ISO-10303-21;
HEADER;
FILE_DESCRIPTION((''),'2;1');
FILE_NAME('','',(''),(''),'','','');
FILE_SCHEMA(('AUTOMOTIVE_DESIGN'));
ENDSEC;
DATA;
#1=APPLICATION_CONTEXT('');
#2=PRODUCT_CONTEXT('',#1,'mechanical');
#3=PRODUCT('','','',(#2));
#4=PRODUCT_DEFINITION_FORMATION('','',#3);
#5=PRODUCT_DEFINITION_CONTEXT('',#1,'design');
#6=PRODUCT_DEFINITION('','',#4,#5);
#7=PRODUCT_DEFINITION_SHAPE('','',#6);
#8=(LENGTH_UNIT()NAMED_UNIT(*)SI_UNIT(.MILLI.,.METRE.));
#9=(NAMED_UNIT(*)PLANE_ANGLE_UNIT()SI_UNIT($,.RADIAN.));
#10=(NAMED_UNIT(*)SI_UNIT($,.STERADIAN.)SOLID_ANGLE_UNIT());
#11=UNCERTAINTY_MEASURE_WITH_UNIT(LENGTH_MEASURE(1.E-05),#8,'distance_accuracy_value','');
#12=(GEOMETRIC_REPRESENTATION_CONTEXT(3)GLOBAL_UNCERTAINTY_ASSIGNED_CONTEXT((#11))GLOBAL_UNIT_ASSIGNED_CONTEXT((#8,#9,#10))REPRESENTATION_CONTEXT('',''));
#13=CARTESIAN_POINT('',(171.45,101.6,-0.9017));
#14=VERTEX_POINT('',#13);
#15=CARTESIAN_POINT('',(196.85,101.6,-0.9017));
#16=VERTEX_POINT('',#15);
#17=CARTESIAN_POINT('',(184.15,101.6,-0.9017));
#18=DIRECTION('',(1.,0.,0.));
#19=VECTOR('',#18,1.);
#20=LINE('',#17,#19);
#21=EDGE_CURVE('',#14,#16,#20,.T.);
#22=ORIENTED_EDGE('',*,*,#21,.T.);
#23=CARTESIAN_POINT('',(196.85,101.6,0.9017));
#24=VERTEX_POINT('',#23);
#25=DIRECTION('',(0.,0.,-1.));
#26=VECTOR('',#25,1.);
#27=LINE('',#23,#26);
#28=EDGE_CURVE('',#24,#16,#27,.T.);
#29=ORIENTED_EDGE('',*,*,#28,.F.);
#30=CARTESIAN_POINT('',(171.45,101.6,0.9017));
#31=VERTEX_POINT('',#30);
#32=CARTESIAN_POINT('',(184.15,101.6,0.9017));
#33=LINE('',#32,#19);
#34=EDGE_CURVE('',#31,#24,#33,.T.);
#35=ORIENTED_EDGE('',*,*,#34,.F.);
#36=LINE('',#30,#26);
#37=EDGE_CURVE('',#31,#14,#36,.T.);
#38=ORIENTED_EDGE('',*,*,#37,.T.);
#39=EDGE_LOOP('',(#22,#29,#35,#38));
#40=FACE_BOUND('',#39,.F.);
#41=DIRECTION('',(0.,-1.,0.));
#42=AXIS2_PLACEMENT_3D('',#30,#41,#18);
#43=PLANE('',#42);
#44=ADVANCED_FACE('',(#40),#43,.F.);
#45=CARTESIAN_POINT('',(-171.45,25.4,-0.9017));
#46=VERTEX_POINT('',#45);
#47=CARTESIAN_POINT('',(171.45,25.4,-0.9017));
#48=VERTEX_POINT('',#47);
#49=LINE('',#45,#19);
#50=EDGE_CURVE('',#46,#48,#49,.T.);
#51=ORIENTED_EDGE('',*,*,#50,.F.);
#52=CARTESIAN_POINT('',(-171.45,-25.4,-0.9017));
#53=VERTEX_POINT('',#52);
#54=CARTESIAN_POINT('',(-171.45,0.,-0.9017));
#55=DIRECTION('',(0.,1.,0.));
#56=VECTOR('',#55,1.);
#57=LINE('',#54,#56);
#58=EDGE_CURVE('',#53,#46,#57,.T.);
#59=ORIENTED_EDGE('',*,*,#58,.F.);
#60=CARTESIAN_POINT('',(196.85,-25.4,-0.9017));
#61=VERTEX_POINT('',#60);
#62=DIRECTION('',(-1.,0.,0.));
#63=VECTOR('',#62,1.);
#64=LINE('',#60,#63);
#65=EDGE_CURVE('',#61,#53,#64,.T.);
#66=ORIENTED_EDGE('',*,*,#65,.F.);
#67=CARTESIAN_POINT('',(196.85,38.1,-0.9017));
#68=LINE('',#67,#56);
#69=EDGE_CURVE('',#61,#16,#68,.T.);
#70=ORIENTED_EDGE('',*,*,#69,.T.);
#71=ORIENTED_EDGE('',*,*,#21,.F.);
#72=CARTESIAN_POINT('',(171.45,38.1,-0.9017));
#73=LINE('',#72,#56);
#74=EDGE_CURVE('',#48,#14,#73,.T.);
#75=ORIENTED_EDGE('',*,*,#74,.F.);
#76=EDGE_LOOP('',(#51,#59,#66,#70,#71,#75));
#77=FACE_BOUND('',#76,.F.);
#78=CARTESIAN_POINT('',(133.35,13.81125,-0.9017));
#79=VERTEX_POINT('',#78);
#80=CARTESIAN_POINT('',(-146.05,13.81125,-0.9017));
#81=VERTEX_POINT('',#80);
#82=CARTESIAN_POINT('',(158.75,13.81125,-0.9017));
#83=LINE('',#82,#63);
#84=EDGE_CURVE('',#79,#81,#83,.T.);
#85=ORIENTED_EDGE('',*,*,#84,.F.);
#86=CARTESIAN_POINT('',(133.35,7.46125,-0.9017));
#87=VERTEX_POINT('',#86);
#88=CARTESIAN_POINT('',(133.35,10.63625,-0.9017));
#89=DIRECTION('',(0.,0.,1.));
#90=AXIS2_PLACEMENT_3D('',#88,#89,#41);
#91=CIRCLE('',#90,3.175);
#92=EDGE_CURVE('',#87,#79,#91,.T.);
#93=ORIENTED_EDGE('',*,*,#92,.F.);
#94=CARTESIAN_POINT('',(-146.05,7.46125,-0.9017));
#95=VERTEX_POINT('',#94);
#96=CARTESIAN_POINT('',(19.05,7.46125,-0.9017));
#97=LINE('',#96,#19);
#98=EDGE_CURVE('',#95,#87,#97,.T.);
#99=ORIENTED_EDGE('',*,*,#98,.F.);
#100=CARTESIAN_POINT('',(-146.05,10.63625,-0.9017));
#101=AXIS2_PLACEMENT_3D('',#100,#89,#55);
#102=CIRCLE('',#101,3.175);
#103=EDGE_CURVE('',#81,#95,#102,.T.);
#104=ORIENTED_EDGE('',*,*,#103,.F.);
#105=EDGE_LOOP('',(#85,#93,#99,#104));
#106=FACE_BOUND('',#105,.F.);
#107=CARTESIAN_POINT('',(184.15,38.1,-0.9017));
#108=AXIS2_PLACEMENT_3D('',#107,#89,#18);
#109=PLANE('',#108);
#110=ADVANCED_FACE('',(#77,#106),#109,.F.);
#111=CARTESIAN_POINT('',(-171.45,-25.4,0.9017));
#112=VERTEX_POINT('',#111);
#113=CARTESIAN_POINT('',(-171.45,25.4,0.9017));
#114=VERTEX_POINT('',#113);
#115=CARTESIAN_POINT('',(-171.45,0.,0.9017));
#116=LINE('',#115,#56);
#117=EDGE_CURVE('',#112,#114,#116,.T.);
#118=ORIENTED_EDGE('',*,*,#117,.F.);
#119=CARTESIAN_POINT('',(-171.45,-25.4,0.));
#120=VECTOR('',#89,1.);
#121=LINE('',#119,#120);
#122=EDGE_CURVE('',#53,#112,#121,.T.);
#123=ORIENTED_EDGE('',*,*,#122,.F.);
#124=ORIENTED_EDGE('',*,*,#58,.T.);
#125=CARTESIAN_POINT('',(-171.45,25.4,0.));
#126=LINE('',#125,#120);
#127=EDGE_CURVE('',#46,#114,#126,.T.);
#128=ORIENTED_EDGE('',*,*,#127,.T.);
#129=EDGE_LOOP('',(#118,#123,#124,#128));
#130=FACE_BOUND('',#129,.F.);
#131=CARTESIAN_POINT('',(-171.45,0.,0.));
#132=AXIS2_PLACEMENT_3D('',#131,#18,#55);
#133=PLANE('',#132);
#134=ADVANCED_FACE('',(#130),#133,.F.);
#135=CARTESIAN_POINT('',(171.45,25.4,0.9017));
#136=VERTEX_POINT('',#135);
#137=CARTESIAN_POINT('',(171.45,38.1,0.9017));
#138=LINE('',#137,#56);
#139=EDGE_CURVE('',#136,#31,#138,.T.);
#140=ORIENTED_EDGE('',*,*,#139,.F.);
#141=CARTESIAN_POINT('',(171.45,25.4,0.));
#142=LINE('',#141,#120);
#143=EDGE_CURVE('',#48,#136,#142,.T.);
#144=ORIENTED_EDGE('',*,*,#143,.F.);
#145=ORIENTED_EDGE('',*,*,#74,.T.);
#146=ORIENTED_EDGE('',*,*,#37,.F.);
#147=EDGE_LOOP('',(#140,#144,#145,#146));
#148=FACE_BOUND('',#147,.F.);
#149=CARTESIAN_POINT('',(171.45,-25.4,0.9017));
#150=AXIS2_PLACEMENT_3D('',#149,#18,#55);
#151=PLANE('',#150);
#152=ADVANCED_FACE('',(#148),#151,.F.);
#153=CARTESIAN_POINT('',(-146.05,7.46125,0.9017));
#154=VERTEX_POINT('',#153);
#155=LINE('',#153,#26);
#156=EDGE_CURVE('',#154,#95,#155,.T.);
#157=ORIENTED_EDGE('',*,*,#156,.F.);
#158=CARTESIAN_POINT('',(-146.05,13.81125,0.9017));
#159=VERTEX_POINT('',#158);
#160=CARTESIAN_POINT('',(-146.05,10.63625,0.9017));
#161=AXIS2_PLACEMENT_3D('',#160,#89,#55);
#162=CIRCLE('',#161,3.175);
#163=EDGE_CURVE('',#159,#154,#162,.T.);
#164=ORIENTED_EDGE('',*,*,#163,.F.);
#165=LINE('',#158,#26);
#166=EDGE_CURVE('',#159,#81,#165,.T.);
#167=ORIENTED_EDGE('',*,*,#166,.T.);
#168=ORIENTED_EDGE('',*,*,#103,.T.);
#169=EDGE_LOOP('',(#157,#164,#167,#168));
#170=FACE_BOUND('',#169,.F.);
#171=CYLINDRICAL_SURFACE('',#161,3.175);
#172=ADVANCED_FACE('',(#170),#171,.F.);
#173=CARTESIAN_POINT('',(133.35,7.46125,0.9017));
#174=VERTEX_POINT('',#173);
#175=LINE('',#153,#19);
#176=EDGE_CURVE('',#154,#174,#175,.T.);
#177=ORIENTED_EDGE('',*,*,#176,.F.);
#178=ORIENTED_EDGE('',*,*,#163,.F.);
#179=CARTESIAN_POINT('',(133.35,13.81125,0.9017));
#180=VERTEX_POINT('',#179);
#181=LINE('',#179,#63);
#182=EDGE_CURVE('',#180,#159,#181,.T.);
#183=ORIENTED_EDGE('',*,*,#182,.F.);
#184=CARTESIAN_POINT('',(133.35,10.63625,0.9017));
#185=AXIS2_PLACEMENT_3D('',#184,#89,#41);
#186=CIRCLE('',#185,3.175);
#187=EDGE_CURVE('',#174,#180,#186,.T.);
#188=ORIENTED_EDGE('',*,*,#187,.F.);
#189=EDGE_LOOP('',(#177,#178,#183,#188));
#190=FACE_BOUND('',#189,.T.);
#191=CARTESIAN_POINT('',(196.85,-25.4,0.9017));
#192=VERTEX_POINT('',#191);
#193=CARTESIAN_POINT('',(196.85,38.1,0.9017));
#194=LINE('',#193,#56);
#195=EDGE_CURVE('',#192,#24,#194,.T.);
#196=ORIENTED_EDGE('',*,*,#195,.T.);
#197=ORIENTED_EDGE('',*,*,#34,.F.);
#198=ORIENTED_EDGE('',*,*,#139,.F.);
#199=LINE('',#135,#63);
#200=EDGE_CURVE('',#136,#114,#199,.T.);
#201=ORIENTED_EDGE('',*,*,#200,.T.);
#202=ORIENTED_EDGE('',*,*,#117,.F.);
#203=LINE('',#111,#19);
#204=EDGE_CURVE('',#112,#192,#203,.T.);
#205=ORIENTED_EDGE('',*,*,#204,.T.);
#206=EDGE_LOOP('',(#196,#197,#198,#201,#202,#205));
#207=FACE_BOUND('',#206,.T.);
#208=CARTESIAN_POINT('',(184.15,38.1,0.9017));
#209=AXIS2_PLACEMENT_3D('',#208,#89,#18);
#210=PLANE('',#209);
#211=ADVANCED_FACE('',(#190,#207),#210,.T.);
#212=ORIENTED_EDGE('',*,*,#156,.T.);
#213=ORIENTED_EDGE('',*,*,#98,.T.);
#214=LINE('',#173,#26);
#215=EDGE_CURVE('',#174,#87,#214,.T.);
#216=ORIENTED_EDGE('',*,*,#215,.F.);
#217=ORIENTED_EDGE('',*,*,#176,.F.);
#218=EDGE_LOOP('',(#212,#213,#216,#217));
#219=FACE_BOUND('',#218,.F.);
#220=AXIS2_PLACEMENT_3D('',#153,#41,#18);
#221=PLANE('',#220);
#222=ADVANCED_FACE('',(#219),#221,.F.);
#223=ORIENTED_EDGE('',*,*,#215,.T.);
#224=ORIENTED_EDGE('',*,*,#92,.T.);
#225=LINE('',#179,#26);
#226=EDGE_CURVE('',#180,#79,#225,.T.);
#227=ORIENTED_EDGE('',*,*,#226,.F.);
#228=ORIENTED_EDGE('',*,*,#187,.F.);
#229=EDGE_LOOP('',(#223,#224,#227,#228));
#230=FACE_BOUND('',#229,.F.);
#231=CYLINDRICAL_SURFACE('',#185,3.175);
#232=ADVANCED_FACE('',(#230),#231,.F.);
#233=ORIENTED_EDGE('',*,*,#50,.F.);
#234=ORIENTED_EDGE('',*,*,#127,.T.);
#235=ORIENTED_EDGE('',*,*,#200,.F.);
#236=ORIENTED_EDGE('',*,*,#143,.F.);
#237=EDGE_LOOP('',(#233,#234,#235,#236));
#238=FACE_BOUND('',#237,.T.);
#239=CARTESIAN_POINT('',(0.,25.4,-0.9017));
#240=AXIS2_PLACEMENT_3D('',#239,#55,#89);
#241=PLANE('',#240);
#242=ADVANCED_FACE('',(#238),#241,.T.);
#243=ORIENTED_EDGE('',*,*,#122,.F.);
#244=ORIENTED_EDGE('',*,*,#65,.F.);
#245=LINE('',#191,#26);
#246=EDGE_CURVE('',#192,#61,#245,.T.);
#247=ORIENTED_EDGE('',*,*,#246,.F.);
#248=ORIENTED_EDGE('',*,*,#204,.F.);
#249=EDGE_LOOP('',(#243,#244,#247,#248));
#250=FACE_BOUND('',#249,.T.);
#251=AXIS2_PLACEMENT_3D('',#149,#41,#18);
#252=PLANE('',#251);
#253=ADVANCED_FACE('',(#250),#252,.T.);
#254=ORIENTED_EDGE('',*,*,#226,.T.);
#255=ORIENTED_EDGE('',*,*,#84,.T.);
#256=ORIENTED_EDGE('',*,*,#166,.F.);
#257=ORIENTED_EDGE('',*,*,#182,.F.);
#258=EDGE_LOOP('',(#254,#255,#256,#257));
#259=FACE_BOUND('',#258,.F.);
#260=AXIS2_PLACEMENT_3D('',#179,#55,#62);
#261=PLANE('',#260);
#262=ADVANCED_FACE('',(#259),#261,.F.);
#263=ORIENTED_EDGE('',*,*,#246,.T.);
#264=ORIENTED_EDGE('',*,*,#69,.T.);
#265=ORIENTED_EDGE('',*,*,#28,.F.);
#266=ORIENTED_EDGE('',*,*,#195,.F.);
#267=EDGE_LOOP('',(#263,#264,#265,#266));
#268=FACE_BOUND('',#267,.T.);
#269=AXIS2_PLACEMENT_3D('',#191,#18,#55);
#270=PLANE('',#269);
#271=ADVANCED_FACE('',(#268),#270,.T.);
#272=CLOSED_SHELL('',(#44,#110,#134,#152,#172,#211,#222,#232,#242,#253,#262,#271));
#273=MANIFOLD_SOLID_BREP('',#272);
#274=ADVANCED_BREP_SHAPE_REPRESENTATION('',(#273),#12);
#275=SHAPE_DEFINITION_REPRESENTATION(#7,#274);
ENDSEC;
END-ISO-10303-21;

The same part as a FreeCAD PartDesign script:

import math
import FreeCAD as App
import Part
import Sketcher
from FreeCAD import Vector
Q = App.Units.Quantity

doc = App.newDocument("Part")
body = doc.addObject("PartDesign::Body", "Body")

# Sketch on YZ plane
sketch1 = body.newObject("Sketcher::SketchObject", "Sketch")
sketch1.AttachmentSupport = (doc.getObject("YZ_Plane"), [""])
sketch1.MapMode = "FlatFace"
sketch1.addGeometry([
    Part.LineSegment(Vector(-25.4, 0.9017, 0), Vector(-25.4, -0.9017, 0)),
    Part.LineSegment(Vector(-25.4, -0.9017, 0), Vector(25.4, -0.9017, 0)),
    Part.LineSegment(Vector(25.4, -0.9017, 0), Vector(25.4, 0.9017, 0)),
    Part.LineSegment(Vector(25.4, 0.9017, 0), Vector(-25.4, 0.9017, 0)),
], False)
sketch1.addConstraint([
    Sketcher.Constraint("Coincident", 0, 2, 1, 1),
    Sketcher.Constraint("Coincident", 1, 2, 2, 1),
    Sketcher.Constraint("Coincident", 2, 2, 3, 1),
    Sketcher.Constraint("Coincident", 3, 2, 0, 1),
    Sketcher.Constraint("Vertical", 0),
    Sketcher.Constraint("Horizontal", 1),
    Sketcher.Constraint("Vertical", 2),
    Sketcher.Constraint("Horizontal", 3),
    Sketcher.Constraint("Symmetric", 0, 2, 2, 2, -1, 1),
    Sketcher.Constraint("DistanceX", 1, 1, 1, 2, Q("2 in")),
    Sketcher.Constraint("DistanceY", 0, 2, 0, 1, Q("0.071 in")),
])
pad1 = body.newObject("PartDesign::Pad", "Pad")
pad1.Profile = sketch1
pad1.Type = "TwoLengths"
pad1.Length = Q("6.75 in")
pad1.Length2 = Q("6.75 in")

# Sketch on XY plane
sketch2 = body.newObject("Sketcher::SketchObject", "Sketch001")
sketch2.AttachmentSupport = (doc.getObject("XY_Plane"), [""])
sketch2.MapMode = "FlatFace"
sketch2.AttachmentOffset = App.Placement(Vector(0, 0, 0.0355 * 25.4), App.Rotation())
sketch2.addGeometry([
    Part.LineSegment(Vector(171.45, 101.6, 0), Vector(171.45, -25.4, 0)),
    Part.LineSegment(Vector(171.45, -25.4, 0), Vector(196.85, -25.4, 0)),
    Part.LineSegment(Vector(196.85, -25.4, 0), Vector(196.85, 101.6, 0)),
    Part.LineSegment(Vector(196.85, 101.6, 0), Vector(171.45, 101.6, 0)),
], False)
sketch2.addConstraint([
    Sketcher.Constraint("Coincident", 0, 2, 1, 1),
    Sketcher.Constraint("Coincident", 1, 2, 2, 1),
    Sketcher.Constraint("Coincident", 2, 2, 3, 1),
    Sketcher.Constraint("Coincident", 3, 2, 0, 1),
    Sketcher.Constraint("Vertical", 0),
    Sketcher.Constraint("Horizontal", 1),
    Sketcher.Constraint("Vertical", 2),
    Sketcher.Constraint("Horizontal", 3),
    Sketcher.Constraint("DistanceX", 1, 1, 1, 2, Q("1 in")),
    Sketcher.Constraint("DistanceY", 0, 2, 0, 1, Q("5 in")),
    Sketcher.Constraint("DistanceY", 0, 2, -1, 1, Q("1 in")),
    Sketcher.Constraint("DistanceX", -1, 1, 0, 2, Q("6.75 in")),
])
pad2 = body.newObject("PartDesign::Pad", "Pad001")
pad2.Profile = sketch2
pad2.Length = Q("0.071 in")
pad2.Reversed = True

# Sketch on XY plane
sketch3 = body.newObject("Sketcher::SketchObject", "Sketch002")
sketch3.AttachmentSupport = (doc.getObject("XY_Plane"), [""])
sketch3.MapMode = "FlatFace"
sketch3.AttachmentOffset = App.Placement(Vector(0, 0, 0.0355 * 25.4), App.Rotation())
sketch3.addGeometry([
    Part.ArcOfCircle(Part.Circle(Vector(-146.05, 10.63625, 0), Vector(0, 0, 1), 3.175), math.radians(90), math.radians(270)),
    Part.LineSegment(Vector(-146.05, 7.46125, 0), Vector(133.35, 7.46125, 0)),
    Part.ArcOfCircle(Part.Circle(Vector(133.35, 10.63625, 0), Vector(0, 0, 1), 3.175), math.radians(-90), math.radians(90)),
    Part.LineSegment(Vector(133.35, 13.81125, 0), Vector(-146.05, 13.81125, 0)),
], False)
sketch3.addConstraint([
    Sketcher.Constraint("Tangent", 0, 2, 1, 1),
    Sketcher.Constraint("Tangent", 1, 2, 2, 1),
    Sketcher.Constraint("Tangent", 2, 2, 3, 1),
    Sketcher.Constraint("Tangent", 3, 2, 0, 1),
    Sketcher.Constraint("Horizontal", 1),
    Sketcher.Constraint("Horizontal", 3),
    Sketcher.Constraint("DistanceX", 1, 1, 1, 2, Q("11 in")),
    Sketcher.Constraint("Radius", 0, Q("0.125 in")),
    Sketcher.Constraint("DistanceX", 0, 3, -1, 1, Q("5.75 in")),
    Sketcher.Constraint("DistanceY", -1, 1, 0, 3, 10.63625),
])
pocket1 = body.newObject("PartDesign::Pocket", "Pocket")
pocket1.Profile = sketch3
pocket1.Type = "ThroughAll"

doc.recompute()
